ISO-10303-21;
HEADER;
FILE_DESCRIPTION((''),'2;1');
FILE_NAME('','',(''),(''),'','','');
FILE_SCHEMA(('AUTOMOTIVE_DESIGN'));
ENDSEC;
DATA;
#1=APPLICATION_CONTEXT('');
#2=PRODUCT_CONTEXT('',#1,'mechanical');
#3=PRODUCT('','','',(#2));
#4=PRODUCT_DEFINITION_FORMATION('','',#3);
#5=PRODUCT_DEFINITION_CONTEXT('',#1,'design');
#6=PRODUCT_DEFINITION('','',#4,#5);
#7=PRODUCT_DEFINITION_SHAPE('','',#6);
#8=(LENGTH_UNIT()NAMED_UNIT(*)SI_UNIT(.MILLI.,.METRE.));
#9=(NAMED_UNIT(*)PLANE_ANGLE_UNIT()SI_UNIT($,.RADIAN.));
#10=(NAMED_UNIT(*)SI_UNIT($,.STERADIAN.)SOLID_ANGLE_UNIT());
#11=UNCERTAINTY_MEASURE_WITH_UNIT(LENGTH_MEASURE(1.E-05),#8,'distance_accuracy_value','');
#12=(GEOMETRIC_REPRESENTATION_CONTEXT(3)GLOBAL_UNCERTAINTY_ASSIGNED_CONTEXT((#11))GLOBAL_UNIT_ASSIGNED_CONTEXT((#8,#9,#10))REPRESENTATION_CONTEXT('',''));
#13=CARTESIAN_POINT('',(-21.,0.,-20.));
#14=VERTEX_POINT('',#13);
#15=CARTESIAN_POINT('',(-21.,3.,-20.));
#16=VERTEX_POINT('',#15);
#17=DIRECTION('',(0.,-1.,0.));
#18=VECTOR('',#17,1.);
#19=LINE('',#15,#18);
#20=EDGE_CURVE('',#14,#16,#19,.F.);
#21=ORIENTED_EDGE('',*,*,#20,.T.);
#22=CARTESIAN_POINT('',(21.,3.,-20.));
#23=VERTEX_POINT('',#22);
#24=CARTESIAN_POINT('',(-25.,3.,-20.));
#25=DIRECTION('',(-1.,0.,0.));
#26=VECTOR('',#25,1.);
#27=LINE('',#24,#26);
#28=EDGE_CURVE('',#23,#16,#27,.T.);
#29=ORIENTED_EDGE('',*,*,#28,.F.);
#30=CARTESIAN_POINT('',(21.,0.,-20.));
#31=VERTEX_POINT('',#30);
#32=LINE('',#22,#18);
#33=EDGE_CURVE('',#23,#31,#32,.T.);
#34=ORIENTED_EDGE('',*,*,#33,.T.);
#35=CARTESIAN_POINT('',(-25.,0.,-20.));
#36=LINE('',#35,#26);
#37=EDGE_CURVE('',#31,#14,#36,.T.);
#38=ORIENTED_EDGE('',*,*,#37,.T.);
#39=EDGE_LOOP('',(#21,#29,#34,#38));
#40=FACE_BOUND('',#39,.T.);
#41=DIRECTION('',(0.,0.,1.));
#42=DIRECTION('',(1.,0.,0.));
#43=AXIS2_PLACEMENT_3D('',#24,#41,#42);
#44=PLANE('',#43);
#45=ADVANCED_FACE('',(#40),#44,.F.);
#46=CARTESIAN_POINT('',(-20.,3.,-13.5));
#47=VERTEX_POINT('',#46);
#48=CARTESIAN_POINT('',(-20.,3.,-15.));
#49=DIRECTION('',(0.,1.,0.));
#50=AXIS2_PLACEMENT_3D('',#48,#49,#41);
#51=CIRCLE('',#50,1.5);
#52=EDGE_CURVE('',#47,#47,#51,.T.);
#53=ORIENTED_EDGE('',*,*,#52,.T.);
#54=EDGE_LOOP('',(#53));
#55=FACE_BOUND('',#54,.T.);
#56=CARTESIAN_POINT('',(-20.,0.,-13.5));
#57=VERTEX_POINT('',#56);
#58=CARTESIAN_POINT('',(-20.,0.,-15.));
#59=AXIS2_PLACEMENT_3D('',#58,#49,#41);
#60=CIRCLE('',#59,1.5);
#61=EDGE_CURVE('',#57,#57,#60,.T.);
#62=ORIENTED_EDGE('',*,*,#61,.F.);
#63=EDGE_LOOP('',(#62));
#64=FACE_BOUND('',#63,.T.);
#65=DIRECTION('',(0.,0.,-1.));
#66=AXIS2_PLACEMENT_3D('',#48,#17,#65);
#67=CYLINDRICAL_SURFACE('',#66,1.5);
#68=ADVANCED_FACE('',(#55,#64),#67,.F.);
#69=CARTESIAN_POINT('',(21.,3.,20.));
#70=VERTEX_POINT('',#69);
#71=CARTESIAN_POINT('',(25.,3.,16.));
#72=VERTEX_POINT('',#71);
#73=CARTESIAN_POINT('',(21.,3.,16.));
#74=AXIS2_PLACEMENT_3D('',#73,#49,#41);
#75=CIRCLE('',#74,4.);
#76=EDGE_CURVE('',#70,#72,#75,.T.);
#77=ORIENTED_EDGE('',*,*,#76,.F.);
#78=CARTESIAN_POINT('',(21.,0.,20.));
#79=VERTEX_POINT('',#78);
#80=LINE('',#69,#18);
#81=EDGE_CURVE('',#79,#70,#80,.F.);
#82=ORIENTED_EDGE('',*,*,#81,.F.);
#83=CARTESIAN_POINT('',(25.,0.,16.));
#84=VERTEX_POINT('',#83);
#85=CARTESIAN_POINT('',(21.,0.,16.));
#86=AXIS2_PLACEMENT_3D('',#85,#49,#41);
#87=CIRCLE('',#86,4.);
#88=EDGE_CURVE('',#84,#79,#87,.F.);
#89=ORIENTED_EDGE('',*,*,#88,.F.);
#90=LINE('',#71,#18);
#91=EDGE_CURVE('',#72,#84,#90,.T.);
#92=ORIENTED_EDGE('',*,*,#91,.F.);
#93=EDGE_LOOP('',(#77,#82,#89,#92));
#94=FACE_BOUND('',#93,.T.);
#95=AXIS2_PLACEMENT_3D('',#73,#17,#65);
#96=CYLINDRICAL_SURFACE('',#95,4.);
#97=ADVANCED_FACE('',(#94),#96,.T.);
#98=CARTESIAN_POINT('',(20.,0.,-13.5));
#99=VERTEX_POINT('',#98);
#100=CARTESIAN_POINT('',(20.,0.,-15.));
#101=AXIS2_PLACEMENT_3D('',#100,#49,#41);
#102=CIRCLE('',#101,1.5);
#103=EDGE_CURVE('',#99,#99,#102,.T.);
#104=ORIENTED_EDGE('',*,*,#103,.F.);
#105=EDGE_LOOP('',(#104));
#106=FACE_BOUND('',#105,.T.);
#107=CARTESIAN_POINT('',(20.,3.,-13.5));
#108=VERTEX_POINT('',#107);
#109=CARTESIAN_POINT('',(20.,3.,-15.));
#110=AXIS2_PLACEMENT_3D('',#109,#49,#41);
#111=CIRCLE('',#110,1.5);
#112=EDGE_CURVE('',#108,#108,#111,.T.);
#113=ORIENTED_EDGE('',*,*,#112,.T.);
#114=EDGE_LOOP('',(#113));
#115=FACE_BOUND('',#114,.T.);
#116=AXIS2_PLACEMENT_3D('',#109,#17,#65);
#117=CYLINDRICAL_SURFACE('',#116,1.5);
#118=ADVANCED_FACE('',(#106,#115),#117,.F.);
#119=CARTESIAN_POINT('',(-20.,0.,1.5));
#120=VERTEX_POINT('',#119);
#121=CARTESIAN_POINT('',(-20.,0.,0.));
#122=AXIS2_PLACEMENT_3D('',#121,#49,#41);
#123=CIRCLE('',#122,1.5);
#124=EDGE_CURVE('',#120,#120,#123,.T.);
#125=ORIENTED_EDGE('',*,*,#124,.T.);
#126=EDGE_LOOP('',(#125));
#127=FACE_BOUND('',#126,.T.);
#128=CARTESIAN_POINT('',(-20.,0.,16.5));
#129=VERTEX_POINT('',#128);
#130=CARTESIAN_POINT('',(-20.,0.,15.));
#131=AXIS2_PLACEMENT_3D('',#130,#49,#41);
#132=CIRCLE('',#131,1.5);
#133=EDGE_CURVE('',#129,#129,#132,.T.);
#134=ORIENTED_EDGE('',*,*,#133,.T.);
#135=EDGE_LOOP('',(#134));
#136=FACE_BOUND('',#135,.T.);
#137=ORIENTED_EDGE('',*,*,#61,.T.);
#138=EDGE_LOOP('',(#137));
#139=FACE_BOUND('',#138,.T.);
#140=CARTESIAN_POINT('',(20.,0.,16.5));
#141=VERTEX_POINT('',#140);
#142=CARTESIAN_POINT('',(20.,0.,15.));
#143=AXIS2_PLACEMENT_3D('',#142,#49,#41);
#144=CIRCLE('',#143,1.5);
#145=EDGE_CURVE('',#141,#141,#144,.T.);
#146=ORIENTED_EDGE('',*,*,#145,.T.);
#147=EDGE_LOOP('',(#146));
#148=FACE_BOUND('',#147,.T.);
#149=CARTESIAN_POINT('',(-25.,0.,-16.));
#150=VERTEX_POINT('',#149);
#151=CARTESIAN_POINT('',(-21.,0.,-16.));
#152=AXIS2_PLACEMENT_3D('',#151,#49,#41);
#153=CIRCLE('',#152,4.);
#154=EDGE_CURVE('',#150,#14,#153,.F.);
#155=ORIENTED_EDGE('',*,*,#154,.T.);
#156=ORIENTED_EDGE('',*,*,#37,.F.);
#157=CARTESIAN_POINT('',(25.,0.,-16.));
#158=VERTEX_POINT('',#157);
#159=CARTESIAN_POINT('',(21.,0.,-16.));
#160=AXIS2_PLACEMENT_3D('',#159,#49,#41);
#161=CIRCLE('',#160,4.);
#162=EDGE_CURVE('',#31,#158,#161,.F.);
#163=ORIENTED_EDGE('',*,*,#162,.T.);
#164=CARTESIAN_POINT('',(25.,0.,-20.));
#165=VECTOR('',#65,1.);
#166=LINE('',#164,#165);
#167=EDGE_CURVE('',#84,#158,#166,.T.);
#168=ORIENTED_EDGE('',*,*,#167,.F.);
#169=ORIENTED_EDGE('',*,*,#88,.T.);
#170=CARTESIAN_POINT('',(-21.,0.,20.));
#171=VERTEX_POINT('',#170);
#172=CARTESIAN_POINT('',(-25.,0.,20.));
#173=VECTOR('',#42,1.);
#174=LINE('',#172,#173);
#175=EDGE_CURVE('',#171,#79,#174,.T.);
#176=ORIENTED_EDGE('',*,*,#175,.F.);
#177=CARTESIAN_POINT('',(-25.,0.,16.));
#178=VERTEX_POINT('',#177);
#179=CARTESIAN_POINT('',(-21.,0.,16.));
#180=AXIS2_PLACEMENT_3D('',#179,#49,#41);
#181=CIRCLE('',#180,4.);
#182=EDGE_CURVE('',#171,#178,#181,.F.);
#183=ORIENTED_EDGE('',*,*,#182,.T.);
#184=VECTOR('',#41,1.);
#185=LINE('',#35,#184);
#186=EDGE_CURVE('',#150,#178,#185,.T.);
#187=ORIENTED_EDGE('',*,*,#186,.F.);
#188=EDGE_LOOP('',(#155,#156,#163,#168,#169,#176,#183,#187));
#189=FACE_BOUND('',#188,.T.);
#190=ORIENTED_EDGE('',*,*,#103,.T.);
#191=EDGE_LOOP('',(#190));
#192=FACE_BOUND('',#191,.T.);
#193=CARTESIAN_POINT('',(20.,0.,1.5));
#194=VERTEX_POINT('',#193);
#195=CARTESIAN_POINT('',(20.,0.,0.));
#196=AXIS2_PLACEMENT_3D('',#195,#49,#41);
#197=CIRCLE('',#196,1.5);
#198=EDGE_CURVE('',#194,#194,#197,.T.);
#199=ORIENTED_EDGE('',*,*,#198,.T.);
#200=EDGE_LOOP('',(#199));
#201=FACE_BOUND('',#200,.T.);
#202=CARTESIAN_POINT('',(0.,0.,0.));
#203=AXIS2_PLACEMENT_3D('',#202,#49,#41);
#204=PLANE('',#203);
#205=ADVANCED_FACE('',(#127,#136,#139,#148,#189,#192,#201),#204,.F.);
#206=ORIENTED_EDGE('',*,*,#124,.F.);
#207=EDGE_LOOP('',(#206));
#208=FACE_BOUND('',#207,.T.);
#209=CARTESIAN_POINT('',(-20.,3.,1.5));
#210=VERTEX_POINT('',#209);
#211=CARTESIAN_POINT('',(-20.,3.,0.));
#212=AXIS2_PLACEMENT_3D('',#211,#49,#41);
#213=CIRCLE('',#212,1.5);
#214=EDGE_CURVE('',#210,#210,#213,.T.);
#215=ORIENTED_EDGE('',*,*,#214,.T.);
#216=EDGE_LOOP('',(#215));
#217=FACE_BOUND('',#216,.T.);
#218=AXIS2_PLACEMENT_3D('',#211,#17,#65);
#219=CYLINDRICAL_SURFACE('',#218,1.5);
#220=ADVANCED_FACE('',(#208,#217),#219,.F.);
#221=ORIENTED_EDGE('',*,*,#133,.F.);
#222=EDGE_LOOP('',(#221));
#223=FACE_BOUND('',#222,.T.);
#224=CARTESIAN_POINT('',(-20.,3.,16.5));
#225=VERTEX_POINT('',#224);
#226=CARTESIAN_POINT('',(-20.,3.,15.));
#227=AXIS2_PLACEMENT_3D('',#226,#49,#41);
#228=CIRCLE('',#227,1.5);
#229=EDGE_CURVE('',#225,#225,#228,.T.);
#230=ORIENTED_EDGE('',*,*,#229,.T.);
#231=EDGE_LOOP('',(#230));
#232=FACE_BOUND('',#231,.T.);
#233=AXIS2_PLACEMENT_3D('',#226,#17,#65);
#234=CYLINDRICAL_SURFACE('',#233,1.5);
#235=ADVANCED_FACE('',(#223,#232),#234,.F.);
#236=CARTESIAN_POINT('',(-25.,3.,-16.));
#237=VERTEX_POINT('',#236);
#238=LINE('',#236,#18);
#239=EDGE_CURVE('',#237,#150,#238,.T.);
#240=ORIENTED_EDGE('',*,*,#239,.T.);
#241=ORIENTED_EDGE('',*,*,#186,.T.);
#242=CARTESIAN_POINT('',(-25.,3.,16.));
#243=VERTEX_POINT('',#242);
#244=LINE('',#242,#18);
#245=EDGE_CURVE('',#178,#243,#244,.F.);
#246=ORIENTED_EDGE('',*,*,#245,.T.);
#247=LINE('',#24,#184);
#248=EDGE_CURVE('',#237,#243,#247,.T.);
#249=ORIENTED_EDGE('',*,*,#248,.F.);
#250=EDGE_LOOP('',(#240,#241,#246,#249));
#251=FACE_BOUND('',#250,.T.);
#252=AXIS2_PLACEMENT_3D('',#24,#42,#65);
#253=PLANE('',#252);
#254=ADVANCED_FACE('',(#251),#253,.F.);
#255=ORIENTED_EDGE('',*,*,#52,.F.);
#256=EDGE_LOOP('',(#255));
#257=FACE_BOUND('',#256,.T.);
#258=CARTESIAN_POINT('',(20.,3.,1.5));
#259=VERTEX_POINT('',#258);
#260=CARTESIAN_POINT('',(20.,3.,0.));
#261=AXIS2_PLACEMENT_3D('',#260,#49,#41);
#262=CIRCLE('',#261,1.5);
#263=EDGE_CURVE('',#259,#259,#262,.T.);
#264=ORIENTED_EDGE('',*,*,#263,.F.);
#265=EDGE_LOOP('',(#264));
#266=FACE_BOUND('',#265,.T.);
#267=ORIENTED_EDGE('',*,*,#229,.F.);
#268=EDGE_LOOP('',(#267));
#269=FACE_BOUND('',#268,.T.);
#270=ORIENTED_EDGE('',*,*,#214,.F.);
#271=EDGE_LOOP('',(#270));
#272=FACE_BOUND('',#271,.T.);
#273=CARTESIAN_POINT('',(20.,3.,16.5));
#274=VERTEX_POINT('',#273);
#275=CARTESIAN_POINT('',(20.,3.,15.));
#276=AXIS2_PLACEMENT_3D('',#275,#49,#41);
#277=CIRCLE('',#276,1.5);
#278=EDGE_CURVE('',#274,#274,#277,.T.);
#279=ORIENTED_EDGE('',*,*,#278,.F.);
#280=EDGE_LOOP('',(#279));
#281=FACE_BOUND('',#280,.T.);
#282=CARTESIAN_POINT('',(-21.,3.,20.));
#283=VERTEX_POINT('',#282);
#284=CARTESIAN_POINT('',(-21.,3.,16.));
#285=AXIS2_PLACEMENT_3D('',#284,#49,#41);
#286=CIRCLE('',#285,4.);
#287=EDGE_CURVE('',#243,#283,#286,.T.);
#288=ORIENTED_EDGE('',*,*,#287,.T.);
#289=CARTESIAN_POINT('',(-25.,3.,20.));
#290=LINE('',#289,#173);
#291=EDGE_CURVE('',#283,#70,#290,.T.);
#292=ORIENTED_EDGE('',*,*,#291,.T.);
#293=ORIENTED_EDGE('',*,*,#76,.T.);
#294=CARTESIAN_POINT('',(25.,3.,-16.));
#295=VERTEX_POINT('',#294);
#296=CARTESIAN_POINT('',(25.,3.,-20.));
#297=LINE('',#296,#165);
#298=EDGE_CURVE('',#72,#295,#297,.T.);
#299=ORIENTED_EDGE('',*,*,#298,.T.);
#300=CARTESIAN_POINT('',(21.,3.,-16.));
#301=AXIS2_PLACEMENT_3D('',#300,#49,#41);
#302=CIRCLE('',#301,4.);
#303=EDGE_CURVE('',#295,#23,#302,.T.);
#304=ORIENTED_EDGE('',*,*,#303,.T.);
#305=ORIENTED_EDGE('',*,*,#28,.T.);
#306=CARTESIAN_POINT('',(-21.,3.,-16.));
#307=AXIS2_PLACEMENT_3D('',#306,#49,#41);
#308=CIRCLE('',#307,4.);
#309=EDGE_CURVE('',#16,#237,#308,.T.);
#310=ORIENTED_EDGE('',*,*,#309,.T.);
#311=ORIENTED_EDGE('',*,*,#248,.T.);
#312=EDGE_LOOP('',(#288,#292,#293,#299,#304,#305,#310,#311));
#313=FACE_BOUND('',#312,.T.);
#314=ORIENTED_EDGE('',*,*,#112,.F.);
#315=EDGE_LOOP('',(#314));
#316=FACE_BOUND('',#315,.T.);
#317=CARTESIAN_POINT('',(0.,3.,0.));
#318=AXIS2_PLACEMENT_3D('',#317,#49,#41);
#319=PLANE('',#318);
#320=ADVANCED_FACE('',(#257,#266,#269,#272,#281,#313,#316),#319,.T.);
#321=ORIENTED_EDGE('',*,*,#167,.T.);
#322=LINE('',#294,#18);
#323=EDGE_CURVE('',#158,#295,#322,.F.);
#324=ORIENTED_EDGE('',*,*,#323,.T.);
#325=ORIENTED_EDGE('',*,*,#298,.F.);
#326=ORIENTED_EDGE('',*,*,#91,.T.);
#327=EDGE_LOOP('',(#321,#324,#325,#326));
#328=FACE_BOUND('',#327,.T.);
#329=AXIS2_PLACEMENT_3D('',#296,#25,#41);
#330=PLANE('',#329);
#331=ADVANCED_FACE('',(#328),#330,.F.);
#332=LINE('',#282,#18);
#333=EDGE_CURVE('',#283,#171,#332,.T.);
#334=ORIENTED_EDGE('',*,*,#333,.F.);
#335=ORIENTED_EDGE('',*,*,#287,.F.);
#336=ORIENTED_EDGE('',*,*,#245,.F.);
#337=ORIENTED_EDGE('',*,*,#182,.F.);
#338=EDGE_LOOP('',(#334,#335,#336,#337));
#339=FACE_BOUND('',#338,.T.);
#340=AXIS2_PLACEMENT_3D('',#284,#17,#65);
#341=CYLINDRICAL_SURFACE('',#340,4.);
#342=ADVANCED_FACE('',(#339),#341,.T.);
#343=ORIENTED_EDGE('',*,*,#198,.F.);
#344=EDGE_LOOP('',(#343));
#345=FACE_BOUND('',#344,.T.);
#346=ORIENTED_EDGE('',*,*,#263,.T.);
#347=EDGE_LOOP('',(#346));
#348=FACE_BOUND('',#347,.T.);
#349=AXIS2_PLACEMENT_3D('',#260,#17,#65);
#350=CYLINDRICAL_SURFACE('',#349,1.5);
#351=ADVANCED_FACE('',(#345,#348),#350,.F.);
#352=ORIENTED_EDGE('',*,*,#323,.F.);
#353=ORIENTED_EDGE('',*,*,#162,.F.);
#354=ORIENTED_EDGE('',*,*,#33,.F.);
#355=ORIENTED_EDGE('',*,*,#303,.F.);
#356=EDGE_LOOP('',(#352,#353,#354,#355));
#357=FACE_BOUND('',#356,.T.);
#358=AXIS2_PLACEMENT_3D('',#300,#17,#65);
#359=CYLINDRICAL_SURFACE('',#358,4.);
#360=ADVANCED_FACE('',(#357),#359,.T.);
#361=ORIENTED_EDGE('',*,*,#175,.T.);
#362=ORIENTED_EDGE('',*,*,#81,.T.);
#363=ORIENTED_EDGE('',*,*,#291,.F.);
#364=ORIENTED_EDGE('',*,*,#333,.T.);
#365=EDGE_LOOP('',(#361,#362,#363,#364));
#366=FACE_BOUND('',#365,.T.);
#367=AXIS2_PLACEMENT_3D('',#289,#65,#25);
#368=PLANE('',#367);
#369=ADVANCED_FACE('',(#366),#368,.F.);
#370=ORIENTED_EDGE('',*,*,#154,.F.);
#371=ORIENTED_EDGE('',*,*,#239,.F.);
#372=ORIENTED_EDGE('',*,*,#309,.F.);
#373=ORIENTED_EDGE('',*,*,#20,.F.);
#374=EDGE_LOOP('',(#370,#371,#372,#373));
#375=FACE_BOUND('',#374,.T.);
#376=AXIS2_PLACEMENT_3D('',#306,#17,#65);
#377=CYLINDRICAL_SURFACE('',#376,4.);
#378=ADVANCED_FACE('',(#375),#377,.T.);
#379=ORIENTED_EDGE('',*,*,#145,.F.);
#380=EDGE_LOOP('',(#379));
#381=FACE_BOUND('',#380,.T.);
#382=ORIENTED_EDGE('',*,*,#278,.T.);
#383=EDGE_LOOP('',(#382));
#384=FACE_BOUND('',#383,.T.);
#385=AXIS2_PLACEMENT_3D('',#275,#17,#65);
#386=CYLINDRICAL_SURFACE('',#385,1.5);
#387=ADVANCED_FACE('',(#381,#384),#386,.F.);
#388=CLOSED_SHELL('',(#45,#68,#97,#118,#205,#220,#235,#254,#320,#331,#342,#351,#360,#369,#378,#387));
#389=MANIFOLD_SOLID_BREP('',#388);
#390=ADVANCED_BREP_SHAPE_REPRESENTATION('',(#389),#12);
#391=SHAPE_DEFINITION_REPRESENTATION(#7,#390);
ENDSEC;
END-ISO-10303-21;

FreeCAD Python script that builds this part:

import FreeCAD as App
import Part
import Sketcher
from FreeCAD import Vector
Q = App.Units.Quantity


def edges_at(feature, points):
    """Names of the edges that pass closest to the given points."""
    edges = feature.Shape.Edges
    near = lambda p: min(range(len(edges)), key=lambda i: edges[i].distToShape(Part.Vertex(*p))[0])
    return sorted({f"Edge{near(p) + 1}" for p in points})


def add_polygon(sketch, points):
    """Adds a closed chain of lines whose ends are joined by coincident constraints."""
    first, n = sketch.GeometryCount, len(points)
    for a, b in zip(points, points[1:] + points[:1]):
        sketch.addGeometry(Part.LineSegment(App.Vector(*a, 0), App.Vector(*b, 0)), False)
    for i in range(n):
        sketch.addConstraint(Sketcher.Constraint("Coincident", first + i, 2, first + (i + 1) % n, 1))

doc = App.newDocument("Part")
params = doc.addObject("Spreadsheet::Sheet", "Params")
for row, (alias, value) in enumerate([
    ("sketch1_width", "50 mm"),
    ("sketch1_height", "40 mm"),
    ("pad1_length", "3 mm"),
    ("fillet_radius", "4 mm"),
    ("sketch2_diameter", "3 mm"),
    ("pocket1_length", "3 mm"),
    ("sketch3_diameter", "3 mm"),
    ("pocket2_length", "3 mm"),
], start=1):
    params.set(f"A{row}", alias)
    params.set(f"B{row}", "=" + value)
    params.setAlias(f"B{row}", alias)

body = doc.addObject("PartDesign::Body", "Body")

# Sketch on XZ plane
sketch1 = body.newObject("Sketcher::SketchObject", "Sketch")
sketch1.AttachmentSupport = (doc.getObject("XZ_Plane"), [""])
sketch1.MapMode = "FlatFace"
add_polygon(sketch1, [(-25, -20), (-25, 20), (25, 20), (25, -20)])  # lines 0-3
sketch1.addConstraint([
    Sketcher.Constraint("Vertical", 0),
    Sketcher.Constraint("Horizontal", 1),
    Sketcher.Constraint("Vertical", 2),
    Sketcher.Constraint("Horizontal", 3),
    Sketcher.Constraint("Symmetric", 0, 2, 2, 2, -1, 1),
    Sketcher.Constraint("DistanceX", 1, 1, 1, 2, Q("50 mm")),
    Sketcher.Constraint("DistanceY", 0, 1, 0, 2, Q("40 mm")),
])
sketch1.setExpression("Constraints[9]", "Params.sketch1_width")
sketch1.setExpression("Constraints[10]", "Params.sketch1_height")
pad1 = body.newObject("PartDesign::Pad", "Pad")
pad1.Profile = sketch1
pad1.setExpression("Length", "Params.pad1_length")
pad1.Reversed = True
doc.recompute()

fillet = body.newObject("PartDesign::Fillet", "Fillet")
fillet.Base = (pad1, edges_at(pad1, [
    (25, 1.5, 20),
    (-25, 1.5, 20),
    (-25, 1.5, -20),
    (25, 1.5, -20),
]))
fillet.setExpression("Radius", "Params.fillet_radius")

# Sketch on XZ plane
sketch2 = body.newObject("Sketcher::SketchObject", "Sketch001")
sketch2.AttachmentSupport = (doc.getObject("XZ_Plane"), [""])
sketch2.MapMode = "FlatFace"
sketch2.addGeometry([
    Part.Circle(Vector(-20, 0, 0), Vector(0, 0, 1), 1.5),
    Part.Circle(Vector(20, 0, 0), Vector(0, 0, 1), 1.5),
], False)
sketch2.addConstraint([
    Sketcher.Constraint("Equal", 0, 1),
    Sketcher.Constraint("Symmetric", 0, 3, 1, 3, -1, 1),
    Sketcher.Constraint("PointOnObject", 0, 3, -1),
    Sketcher.Constraint("Diameter", 0, Q("3 mm")),
    Sketcher.Constraint("DistanceX", 0, 3, -1, 1, Q("20 mm")),
])
sketch2.setExpression("Constraints[3]", "Params.sketch2_diameter")
pocket1 = body.newObject("PartDesign::Pocket", "Pocket")
pocket1.Profile = sketch2
pocket1.setExpression("Length", "Params.pocket1_length")

# Sketch on XZ plane
sketch3 = body.newObject("Sketcher::SketchObject", "Sketch002")
sketch3.AttachmentSupport = (doc.getObject("XZ_Plane"), [""])
sketch3.MapMode = "FlatFace"
sketch3.addGeometry([
    Part.Circle(Vector(-20, 15, 0), Vector(0, 0, 1), 1.5),
    Part.Circle(Vector(20, 15, 0), Vector(0, 0, 1), 1.5),
    Part.Circle(Vector(20, -15, 0), Vector(0, 0, 1), 1.5),
    Part.Circle(Vector(-20, -15, 0), Vector(0, 0, 1), 1.5),
], False)
sketch3.addConstraint([
    Sketcher.Constraint("Equal", 0, 1),
    Sketcher.Constraint("Equal", 1, 2),
    Sketcher.Constraint("Equal", 2, 3),
    Sketcher.Constraint("Symmetric", 0, 3, 2, 3, -1, 1),
    Sketcher.Constraint("Symmetric", 1, 3, 3, 3, -1, 1),
    Sketcher.Constraint("Symmetric", 0, 3, 1, 3, -2),
    Sketcher.Constraint("Diameter", 0, Q("3 mm")),
    Sketcher.Constraint("DistanceX", 0, 3, -1, 1, Q("20 mm")),
    Sketcher.Constraint("DistanceY", -1, 1, 0, 3, Q("15 mm")),
])
sketch3.setExpression("Constraints[6]", "Params.sketch3_diameter")
pocket2 = body.newObject("PartDesign::Pocket", "Pocket001")
pocket2.Profile = sketch3
pocket2.setExpression("Length", "Params.pocket2_length")

doc.recompute()
